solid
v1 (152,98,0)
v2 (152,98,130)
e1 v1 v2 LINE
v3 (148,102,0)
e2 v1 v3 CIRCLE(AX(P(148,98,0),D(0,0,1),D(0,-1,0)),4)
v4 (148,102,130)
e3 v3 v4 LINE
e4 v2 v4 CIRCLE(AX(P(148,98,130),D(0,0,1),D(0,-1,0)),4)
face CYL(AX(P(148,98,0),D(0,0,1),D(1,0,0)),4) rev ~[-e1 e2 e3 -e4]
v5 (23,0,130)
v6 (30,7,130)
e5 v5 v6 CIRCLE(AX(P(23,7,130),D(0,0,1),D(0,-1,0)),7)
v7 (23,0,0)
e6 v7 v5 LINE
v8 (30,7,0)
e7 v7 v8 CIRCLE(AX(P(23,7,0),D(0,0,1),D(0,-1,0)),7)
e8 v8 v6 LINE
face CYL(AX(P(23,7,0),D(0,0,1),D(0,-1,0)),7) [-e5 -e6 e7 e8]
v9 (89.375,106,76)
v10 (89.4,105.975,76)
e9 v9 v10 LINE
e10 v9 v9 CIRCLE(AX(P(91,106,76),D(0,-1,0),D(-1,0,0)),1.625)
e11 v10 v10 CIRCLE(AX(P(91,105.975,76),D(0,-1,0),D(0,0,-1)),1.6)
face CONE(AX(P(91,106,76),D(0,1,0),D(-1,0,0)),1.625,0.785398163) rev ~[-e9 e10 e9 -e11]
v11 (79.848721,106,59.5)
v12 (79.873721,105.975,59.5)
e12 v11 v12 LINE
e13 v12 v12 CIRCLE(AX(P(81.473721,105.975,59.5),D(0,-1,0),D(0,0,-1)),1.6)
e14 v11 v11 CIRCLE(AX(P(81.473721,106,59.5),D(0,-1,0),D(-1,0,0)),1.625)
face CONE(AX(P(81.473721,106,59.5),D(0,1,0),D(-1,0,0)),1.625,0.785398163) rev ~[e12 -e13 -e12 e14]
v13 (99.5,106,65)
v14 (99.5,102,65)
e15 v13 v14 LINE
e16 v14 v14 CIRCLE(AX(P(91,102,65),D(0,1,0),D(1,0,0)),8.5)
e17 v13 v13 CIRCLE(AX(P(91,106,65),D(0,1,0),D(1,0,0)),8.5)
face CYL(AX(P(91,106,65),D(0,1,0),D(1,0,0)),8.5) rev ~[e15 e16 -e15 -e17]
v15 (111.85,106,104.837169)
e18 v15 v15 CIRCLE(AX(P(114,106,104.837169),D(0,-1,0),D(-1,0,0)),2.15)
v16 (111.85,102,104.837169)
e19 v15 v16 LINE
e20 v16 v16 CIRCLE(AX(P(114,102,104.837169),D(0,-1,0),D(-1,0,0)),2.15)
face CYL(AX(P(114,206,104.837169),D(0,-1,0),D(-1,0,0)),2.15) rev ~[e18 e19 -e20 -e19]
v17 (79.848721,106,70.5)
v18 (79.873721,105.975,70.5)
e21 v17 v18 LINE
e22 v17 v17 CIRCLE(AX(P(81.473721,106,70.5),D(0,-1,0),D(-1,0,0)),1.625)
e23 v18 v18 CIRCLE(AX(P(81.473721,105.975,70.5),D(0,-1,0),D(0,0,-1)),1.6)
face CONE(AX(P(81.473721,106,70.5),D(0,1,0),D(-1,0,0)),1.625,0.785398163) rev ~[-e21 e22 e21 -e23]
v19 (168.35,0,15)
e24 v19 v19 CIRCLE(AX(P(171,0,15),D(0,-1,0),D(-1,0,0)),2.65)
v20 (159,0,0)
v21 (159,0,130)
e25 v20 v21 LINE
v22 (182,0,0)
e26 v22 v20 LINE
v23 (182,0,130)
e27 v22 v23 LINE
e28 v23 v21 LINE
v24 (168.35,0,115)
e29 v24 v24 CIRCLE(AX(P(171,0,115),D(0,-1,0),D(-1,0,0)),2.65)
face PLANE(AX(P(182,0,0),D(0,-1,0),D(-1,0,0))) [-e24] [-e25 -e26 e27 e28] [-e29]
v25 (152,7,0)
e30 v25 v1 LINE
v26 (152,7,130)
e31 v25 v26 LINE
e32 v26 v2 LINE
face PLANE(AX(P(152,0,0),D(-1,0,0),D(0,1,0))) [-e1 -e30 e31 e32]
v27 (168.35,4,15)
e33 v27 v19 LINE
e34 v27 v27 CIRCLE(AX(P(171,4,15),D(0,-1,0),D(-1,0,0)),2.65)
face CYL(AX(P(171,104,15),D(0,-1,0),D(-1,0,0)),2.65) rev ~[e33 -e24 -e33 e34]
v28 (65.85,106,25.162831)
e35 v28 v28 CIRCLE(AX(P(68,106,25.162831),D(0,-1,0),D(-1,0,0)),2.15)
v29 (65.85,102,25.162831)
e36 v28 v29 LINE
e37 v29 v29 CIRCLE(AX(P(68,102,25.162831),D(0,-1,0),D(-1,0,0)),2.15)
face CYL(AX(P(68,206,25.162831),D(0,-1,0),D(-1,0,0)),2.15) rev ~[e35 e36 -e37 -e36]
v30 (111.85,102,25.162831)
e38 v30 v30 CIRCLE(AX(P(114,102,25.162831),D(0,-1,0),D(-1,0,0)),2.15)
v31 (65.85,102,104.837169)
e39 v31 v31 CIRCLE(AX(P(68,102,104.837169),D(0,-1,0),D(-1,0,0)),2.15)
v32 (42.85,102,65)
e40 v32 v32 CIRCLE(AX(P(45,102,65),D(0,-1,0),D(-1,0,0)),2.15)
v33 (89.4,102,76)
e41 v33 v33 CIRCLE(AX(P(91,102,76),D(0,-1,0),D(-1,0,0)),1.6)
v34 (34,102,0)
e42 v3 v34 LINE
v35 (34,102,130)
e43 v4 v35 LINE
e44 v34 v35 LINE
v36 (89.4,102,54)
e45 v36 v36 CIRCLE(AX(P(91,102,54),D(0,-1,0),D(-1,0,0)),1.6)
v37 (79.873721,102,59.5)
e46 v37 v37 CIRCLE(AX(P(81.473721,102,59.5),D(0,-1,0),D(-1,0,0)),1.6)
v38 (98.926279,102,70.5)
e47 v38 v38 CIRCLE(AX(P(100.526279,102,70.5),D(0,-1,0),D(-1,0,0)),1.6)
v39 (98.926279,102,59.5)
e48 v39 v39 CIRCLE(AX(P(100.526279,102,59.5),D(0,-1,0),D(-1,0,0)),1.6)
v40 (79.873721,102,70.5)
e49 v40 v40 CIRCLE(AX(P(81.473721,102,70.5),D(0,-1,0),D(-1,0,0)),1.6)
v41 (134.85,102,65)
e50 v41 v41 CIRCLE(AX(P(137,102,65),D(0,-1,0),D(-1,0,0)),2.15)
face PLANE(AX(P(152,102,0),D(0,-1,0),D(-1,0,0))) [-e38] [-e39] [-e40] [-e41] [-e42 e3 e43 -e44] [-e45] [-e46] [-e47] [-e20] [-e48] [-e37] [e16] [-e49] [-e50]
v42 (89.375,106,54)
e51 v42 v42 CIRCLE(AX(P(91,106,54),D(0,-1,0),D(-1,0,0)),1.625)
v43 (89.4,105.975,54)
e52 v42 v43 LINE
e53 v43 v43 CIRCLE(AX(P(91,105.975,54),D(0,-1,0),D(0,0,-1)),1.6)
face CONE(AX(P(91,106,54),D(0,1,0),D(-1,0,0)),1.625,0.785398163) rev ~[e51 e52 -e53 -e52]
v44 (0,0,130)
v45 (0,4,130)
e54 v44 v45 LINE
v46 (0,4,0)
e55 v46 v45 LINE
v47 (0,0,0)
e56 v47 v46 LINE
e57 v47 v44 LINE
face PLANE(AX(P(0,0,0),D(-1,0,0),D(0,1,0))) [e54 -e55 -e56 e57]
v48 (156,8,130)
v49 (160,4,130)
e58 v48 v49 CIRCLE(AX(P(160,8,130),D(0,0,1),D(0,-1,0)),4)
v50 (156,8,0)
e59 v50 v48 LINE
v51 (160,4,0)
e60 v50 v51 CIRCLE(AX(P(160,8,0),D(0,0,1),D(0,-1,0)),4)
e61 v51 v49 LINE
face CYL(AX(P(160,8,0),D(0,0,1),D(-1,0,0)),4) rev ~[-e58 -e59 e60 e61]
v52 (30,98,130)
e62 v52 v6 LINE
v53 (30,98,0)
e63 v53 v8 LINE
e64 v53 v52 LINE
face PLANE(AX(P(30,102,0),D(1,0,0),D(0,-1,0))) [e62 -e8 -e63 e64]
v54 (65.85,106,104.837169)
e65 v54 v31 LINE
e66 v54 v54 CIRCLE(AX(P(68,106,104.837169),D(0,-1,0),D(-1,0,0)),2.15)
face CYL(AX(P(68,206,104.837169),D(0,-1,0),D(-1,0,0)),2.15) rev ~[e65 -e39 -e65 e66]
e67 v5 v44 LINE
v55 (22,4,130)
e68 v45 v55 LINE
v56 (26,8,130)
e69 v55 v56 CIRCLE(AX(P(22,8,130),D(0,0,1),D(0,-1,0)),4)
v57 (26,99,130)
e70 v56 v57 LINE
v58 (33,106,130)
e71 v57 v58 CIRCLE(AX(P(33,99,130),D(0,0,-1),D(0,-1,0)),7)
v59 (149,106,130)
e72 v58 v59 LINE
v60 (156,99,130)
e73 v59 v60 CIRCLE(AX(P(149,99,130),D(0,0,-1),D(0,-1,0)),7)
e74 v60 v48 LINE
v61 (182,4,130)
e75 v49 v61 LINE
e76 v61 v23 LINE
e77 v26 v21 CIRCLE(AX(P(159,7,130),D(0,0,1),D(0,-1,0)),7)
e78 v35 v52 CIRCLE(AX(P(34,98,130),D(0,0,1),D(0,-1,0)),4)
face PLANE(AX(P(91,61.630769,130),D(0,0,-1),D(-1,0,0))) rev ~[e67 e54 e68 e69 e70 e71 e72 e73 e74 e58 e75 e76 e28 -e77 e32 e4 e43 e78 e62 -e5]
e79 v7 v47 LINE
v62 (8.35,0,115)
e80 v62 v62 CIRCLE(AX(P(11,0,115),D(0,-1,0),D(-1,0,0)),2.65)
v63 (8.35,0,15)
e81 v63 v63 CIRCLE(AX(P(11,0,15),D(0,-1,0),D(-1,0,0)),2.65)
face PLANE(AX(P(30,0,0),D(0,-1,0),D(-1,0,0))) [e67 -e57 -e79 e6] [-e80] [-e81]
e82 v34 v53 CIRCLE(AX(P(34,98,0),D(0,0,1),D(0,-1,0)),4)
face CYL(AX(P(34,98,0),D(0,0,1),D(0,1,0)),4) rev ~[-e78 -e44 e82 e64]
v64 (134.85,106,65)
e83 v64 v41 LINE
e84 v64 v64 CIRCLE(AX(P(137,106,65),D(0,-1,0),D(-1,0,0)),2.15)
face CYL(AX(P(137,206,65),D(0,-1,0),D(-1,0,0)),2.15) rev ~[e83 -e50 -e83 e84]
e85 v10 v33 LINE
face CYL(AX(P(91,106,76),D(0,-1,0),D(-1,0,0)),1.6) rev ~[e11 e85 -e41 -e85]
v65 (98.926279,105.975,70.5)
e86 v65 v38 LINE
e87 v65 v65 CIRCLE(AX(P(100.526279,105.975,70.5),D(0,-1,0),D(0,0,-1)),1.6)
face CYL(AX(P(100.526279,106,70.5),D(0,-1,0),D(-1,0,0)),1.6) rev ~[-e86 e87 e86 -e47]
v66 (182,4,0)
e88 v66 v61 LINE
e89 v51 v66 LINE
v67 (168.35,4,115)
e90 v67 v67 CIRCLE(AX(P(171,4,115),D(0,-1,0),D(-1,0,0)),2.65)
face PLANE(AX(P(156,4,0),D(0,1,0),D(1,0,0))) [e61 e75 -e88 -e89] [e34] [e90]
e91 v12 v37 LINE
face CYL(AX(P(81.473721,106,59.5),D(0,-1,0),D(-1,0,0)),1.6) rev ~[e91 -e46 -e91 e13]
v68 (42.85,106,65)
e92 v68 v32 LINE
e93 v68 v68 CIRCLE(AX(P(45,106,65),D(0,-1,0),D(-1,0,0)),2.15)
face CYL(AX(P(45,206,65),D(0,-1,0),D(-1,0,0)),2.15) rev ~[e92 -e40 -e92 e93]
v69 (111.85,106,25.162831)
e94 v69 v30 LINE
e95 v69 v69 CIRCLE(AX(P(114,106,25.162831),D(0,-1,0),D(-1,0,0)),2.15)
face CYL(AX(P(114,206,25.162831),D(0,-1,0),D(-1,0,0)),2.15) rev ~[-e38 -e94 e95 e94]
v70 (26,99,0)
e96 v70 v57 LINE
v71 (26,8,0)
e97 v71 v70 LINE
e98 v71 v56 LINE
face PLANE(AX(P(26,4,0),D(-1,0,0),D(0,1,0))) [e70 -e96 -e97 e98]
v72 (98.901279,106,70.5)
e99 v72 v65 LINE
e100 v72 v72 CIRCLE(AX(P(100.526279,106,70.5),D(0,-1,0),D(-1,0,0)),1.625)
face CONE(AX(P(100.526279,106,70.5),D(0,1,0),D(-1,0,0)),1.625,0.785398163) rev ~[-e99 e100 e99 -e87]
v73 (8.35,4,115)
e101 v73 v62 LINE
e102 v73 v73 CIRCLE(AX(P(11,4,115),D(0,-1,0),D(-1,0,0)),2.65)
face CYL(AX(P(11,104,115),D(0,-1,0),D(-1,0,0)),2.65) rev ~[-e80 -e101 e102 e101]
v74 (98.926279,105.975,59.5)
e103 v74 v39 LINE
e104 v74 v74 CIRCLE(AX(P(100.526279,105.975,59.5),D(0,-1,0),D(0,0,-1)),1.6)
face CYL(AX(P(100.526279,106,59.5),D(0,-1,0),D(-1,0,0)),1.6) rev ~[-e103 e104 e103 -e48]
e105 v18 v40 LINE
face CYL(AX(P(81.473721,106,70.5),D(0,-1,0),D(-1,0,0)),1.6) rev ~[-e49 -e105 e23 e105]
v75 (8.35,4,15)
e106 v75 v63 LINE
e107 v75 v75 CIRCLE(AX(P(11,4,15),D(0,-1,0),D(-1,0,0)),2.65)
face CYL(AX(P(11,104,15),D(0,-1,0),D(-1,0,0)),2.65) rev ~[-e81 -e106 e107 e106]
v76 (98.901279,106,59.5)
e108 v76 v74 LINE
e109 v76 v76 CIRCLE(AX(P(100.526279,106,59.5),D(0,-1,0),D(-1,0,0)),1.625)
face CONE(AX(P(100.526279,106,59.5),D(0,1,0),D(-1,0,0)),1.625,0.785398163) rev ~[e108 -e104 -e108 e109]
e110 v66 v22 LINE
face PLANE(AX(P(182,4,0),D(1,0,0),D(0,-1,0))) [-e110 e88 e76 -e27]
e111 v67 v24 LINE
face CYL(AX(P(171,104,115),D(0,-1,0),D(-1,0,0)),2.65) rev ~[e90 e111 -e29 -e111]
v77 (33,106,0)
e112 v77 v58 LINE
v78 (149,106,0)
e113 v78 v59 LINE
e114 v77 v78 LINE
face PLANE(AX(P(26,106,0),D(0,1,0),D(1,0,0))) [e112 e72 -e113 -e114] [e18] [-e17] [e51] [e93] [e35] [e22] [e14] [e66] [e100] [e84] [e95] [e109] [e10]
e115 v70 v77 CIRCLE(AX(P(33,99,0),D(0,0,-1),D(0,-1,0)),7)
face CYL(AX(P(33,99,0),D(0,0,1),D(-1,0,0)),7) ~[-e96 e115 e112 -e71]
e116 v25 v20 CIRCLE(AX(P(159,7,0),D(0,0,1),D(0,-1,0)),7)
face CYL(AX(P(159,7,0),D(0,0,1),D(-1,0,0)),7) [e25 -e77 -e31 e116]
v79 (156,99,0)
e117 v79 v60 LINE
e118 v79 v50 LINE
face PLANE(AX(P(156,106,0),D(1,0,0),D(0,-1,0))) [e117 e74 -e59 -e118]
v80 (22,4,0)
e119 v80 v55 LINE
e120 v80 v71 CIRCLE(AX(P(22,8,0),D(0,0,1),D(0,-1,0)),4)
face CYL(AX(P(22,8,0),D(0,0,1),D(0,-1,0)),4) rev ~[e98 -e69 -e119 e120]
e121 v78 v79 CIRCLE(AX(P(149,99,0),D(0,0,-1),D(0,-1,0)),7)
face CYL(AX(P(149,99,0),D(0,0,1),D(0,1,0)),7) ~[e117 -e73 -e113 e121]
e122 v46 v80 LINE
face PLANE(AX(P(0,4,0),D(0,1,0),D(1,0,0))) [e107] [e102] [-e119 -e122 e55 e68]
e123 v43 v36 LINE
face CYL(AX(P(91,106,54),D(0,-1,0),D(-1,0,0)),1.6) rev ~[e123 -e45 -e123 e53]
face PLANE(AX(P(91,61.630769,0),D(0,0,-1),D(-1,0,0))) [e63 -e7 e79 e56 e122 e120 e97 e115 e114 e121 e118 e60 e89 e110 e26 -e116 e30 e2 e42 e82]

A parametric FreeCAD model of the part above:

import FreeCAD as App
import Part
import Sketcher


def edges_at(feature, points):
    """Names of the edges that pass closest to the given points."""
    edges = feature.Shape.Edges
    near = lambda p: min(range(len(edges)), key=lambda i: edges[i].distToShape(Part.Vertex(*p))[0])
    return sorted({f"Edge{near(p) + 1}" for p in points})

doc = App.newDocument("Part")
params = doc.addObject("Spreadsheet::Sheet", "Params")
for row, (alias, value) in enumerate([
    ("sketch1_width", "26 mm"),
    ("sketch1_width2", "30 mm"),
    ("sketch1_width3", "122 mm"),
    ("sketch1_height", "4 mm"),
    ("sketch1_height2", "102 mm"),
    ("pad1_length", "130 mm"),
    ("fillet_radius", "4 mm"),
    ("fillet2_radius", "7 mm"),
    ("sketch2_diameter", "17 mm"),
    ("pocket1_length", "100 mm"),
    ("sketch3_diameter", "3.2 mm"),
    ("hole_diameter", "3.2 mm"),
    ("hole_csink_diameter", "3.25 mm"),
    ("sketch4_diameter", "4.3 mm"),
    ("hole2_diameter", "4.3 mm"),
    ("hole2_depth", "100 mm"),
    ("sketch5_diameter", "5.3 mm"),
    ("hole3_diameter", "5.3 mm"),
    ("hole3_depth", "100 mm"),
], start=1):
    params.set(f"A{row}", alias)
    params.set(f"B{row}", "=" + value)
    params.setAlias(f"B{row}", alias)

body = doc.addObject("PartDesign::Body", "Body")

# Sketch on XY plane
sketch1 = body.newObject("Sketcher::SketchObject", "Sketch")
sketch1.AttachmentSupport = (doc.getObject("XY_Plane"), [""])
sketch1.MapMode = "FlatFace"
sketch1.addGeometry([
    Part.LineSegment(App.Vector(26, 4, 0), App.Vector(0, 4, 0)),  # 0
    Part.LineSegment(App.Vector(0, 4, 0), App.Vector(0, 0, 0)),  # 1
    Part.LineSegment(App.Vector(0, 0, 0), App.Vector(30, 0, 0)),  # 2
    Part.LineSegment(App.Vector(30, 0, 0), App.Vector(30, 102, 0)),  # 3
    Part.LineSegment(App.Vector(30, 102, 0), App.Vector(152, 102, 0)),  # 4
    Part.LineSegment(App.Vector(152, 102, 0), App.Vector(152, 0, 0)),  # 5
    Part.LineSegment(App.Vector(152, 0, 0), App.Vector(182, 0, 0)),  # 6
    Part.LineSegment(App.Vector(182, 0, 0), App.Vector(182, 4, 0)),  # 7
    Part.LineSegment(App.Vector(182, 4, 0), App.Vector(156, 4, 0)),  # 8
    Part.LineSegment(App.Vector(156, 4, 0), App.Vector(156, 106, 0)),  # 9
    Part.LineSegment(App.Vector(156, 106, 0), App.Vector(26, 106, 0)),  # 10
    Part.LineSegment(App.Vector(26, 106, 0), App.Vector(26, 4, 0)),  # 11
], False)
sketch1.addConstraint([
    Sketcher.Constraint("Coincident", 0, 2, 1, 1),
    Sketcher.Constraint("Coincident", 1, 2, 2, 1),
    Sketcher.Constraint("Coincident", 2, 2, 3, 1),
    Sketcher.Constraint("Coincident", 3, 2, 4, 1),
    Sketcher.Constraint("Coincident", 4, 2, 5, 1),
    Sketcher.Constraint("Coincident", 5, 2, 6, 1),
    Sketcher.Constraint("Coincident", 6, 2, 7, 1),
    Sketcher.Constraint("Coincident", 7, 2, 8, 1),
    Sketcher.Constraint("Coincident", 8, 2, 9, 1),
    Sketcher.Constraint("Coincident", 9, 2, 10, 1),
    Sketcher.Constraint("Coincident", 10, 2, 11, 1),
    Sketcher.Constraint("Coincident", 11, 2, 0, 1),
    Sketcher.Constraint("Horizontal", 0),
    Sketcher.Constraint("Vertical", 1),
    Sketcher.Constraint("Horizontal", 2),
    Sketcher.Constraint("Vertical", 3),
    Sketcher.Constraint("Horizontal", 4),
    Sketcher.Constraint("Vertical", 5),
    Sketcher.Constraint("Horizontal", 6),
    Sketcher.Constraint("Vertical", 7),
    Sketcher.Constraint("Horizontal", 8),
    Sketcher.Constraint("Vertical", 9),
    Sketcher.Constraint("Horizontal", 10),
    Sketcher.Constraint("Vertical", 11),
    Sketcher.Constraint("Coincident", 1, 2, -1, 1),
    Sketcher.Constraint("PointOnObject", 5, 2, -1),
    Sketcher.Constraint("Horizontal", 0, 2, 7, 2),
    Sketcher.Constraint("Equal", 2, 6),
    Sketcher.Constraint("Equal", 0, 8),
    Sketcher.Constraint("Equal", 5, 9),
    Sketcher.Constraint("DistanceX", 0, 2, 0, 1, 26.0),
    Sketcher.Constraint("DistanceX", 2, 1, 2, 2, 30.0),
    Sketcher.Constraint("DistanceX", 4, 1, 4, 2, 122.0),
    Sketcher.Constraint("DistanceY", 1, 2, 1, 1, 4.0),
    Sketcher.Constraint("DistanceY", 3, 1, 3, 2, 102.0),
])
sketch1.setExpression("Constraints[30]", "Params.sketch1_width")
sketch1.setExpression("Constraints[31]", "Params.sketch1_width2")
sketch1.setExpression("Constraints[32]", "Params.sketch1_width3")
sketch1.setExpression("Constraints[33]", "Params.sketch1_height")
sketch1.setExpression("Constraints[34]", "Params.sketch1_height2")
pad1 = body.newObject("PartDesign::Pad", "Pad")
pad1.Profile = sketch1
pad1.setExpression("Length", "Params.pad1_length")
doc.recompute()

fillet = body.newObject("PartDesign::Fillet", "Fillet")
fillet.Base = (pad1, edges_at(pad1, [
    (26, 4, 65),
    (156, 4, 65),
    (152, 102, 65),
    (30, 102, 65),
]))
fillet.setExpression("Radius", "Params.fillet_radius")
doc.recompute()

fillet2 = body.newObject("PartDesign::Fillet", "Fillet001")
fillet2.Base = (fillet, edges_at(fillet, [
    (26, 106, 65),
    (156, 106, 65),
    (152, 0, 65),
    (30, 0, 65),
]))
fillet2.setExpression("Radius", "Params.fillet2_radius")

# Sketch on XZ plane
sketch2 = body.newObject("Sketcher::SketchObject", "Sketch001")
sketch2.AttachmentSupport = (doc.getObject("XZ_Plane"), [""])
sketch2.MapMode = "FlatFace"
sketch2.AttachmentOffset = App.Placement(App.Vector(0, 0, -106), App.Rotation())
sketch2.addGeometry(Part.Circle(App.Vector(91, 65, 0), App.Vector(0, 0, 1), 8), False)
sketch2.addConstraint([
    Sketcher.Constraint("Diameter", 0, 17.0),
    Sketcher.Constraint("DistanceX", -1, 1, 0, 3, 91.0),
    Sketcher.Constraint("DistanceY", -1, 1, 0, 3, 65.0),
])
sketch2.setExpression("Constraints[0]", "Params.sketch2_diameter")
pocket1 = body.newObject("PartDesign::Pocket", "Pocket")
pocket1.Profile = sketch2
pocket1.setExpression("Length", "Params.pocket1_length")
pocket1.Reversed = True

# Sketch on XZ plane
sketch3 = body.newObject("Sketcher::SketchObject", "Sketch002")
sketch3.AttachmentSupport = (doc.getObject("XZ_Plane"), [""])
sketch3.MapMode = "FlatFace"
sketch3.AttachmentOffset = App.Placement(App.Vector(0, 0, -106), App.Rotation())
sketch3.addGeometry([
    Part.Circle(App.Vector(91, 54, 0), App.Vector(0, 0, 1), 1.6),  # 0
    Part.Circle(App.Vector(100.5, 59.5, 0), App.Vector(0, 0, 1), 1.6),  # 1
    Part.Circle(App.Vector(100.5, 70.5, 0), App.Vector(0, 0, 1), 1.6),  # 2
    Part.Circle(App.Vector(91, 76, 0), App.Vector(0, 0, 1), 1.6),  # 3
    Part.Circle(App.Vector(81.5, 70.5, 0), App.Vector(0, 0, 1), 1.6),  # 4
    Part.Circle(App.Vector(81.5, 59.5, 0), App.Vector(0, 0, 1), 1.6),  # 5
    Part.Circle(App.Vector(91, 65, 0), App.Vector(0, 0, 1), 1.6),  # 6
], False)
sketch3.addConstraint([
    Sketcher.Constraint("Equal", 0, 1),
    Sketcher.Constraint("Equal", 1, 2),
    Sketcher.Constraint("Equal", 2, 3),
    Sketcher.Constraint("Equal", 3, 4),
    Sketcher.Constraint("Equal", 4, 5),
    Sketcher.Constraint("Equal", 5, 6),
    Sketcher.Constraint("Horizontal", 2, 3, 4, 3),
    Sketcher.Constraint("Horizontal", 1, 3, 5, 3),
    Sketcher.Constraint("Vertical", 1, 3, 2, 3),
    Sketcher.Constraint("Vertical", 0, 3, 3, 3),
    Sketcher.Constraint("Vertical", 4, 3, 5, 3),
    Sketcher.Constraint("Vertical", 3, 3, 6, 3),
    Sketcher.Constraint("Diameter", 0, 3.2),
    Sketcher.Constraint("DistanceX", -1, 1, 0, 3, 91.0),
    Sketcher.Constraint("DistanceY", -1, 1, 0, 3, 54.0),
    Sketcher.Constraint("DistanceY", -1, 1, 3, 3, 76.0),
    Sketcher.Constraint("DistanceY", -1, 1, 6, 3, 65.0),
    Sketcher.Constraint("DistanceY", 1, 3, 2, 3, 11.0),
    Sketcher.Constraint("DistanceY", -1, 1, 1, 3, 59.5),
    Sketcher.Constraint("DistanceX", -1, 1, 1, 3, 100.526279),
    Sketcher.Constraint("DistanceX", -1, 1, 4, 3, 81.473721),
])
sketch3.setExpression("Constraints[12]", "Params.sketch3_diameter")
doc.recompute()
hole = body.newObject("PartDesign::Hole", "Hole")
hole.Profile = sketch3
hole.ThreadType = "None"
hole.setExpression("Diameter", "Params.hole_diameter")
hole.DepthType = "ThroughAll"
hole.HoleCutType = "Countersink"
hole.setExpression("HoleCutDiameter", "Params.hole_csink_diameter")
hole.HoleCutCountersinkAngle = 90
hole.Reversed = True

# Sketch on XZ plane
sketch4 = body.newObject("Sketcher::SketchObject", "Sketch003")
sketch4.AttachmentSupport = (doc.getObject("XZ_Plane"), [""])
sketch4.MapMode = "FlatFace"
sketch4.AttachmentOffset = App.Placement(App.Vector(0, 0, -106), App.Rotation())
sketch4.addGeometry([
    Part.Circle(App.Vector(137, 65, 0), App.Vector(0, 0, 1), 2.1),  # 0
    Part.Circle(App.Vector(114, 104.8, 0), App.Vector(0, 0, 1), 2.1),  # 1
    Part.Circle(App.Vector(68, 104.8, 0), App.Vector(0, 0, 1), 2.1),  # 2
    Part.Circle(App.Vector(45, 65, 0), App.Vector(0, 0, 1), 2.1),  # 3
    Part.Circle(App.Vector(68, 25.2, 0), App.Vector(0, 0, 1), 2.1),  # 4
    Part.Circle(App.Vector(114, 25.2, 0), App.Vector(0, 0, 1), 2.1),  # 5
    Part.Circle(App.Vector(91, 65, 0), App.Vector(0, 0, 1), 2.1),  # 6
], False)
sketch4.addConstraint([
    Sketcher.Constraint("Equal", 0, 1),
    Sketcher.Constraint("Equal", 1, 2),
    Sketcher.Constraint("Equal", 2, 3),
    Sketcher.Constraint("Equal", 3, 4),
    Sketcher.Constraint("Equal", 4, 5),
    Sketcher.Constraint("Equal", 5, 6),
    Sketcher.Constraint("Horizontal", 1, 3, 2, 3),
    Sketcher.Constraint("Horizontal", 0, 3, 3, 3),
    Sketcher.Constraint("Horizontal", 4, 3, 5, 3),
    Sketcher.Constraint("Horizontal", 3, 3, 6, 3),
    Sketcher.Constraint("Vertical", 2, 3, 4, 3),
    Sketcher.Constraint("Vertical", 1, 3, 5, 3),
    Sketcher.Constraint("Diameter", 0, 4.3),
    Sketcher.Constraint("DistanceX", -1, 1, 0, 3, 137.0),
    Sketcher.Constraint("DistanceY", -1, 1, 0, 3, 65.0),
    Sketcher.Constraint("DistanceX", -1, 1, 1, 3, 114.0),
    Sketcher.Constraint("DistanceX", -1, 1, 2, 3, 68.0),
    Sketcher.Constraint("DistanceX", -1, 1, 3, 3, 45.0),
    Sketcher.Constraint("DistanceX", -1, 1, 6, 3, 91.0),
    Sketcher.Constraint("DistanceY", -1, 1, 1, 3, 104.837169),
    Sketcher.Constraint("DistanceY", -1, 1, 4, 3, 25.162831),
])
sketch4.setExpression("Constraints[12]", "Params.sketch4_diameter")
doc.recompute()
hole2 = body.newObject("PartDesign::Hole", "Hole001")
hole2.Profile = sketch4
hole2.ThreadType = "None"
hole2.setExpression("Diameter", "Params.hole2_diameter")
hole2.DepthType = "Dimension"
hole2.setExpression("Depth", "Params.hole2_depth")
hole2.DrillPoint = "Angled"
hole2.DrillPointAngle = 118
hole2.Reversed = True

# Sketch on XZ plane
sketch5 = body.newObject("Sketcher::SketchObject", "Sketch004")
sketch5.AttachmentSupport = (doc.getObject("XZ_Plane"), [""])
sketch5.MapMode = "FlatFace"
sketch5.AttachmentOffset = App.Placement(App.Vector(0, 0, -4), App.Rotation())
sketch5.addGeometry([
    Part.Circle(App.Vector(11, 15, 0), App.Vector(0, 0, 1), 2.6),
    Part.Circle(App.Vector(11, 115, 0), App.Vector(0, 0, 1), 2.6),
    Part.Circle(App.Vector(171, 115, 0), App.Vector(0, 0, 1), 2.6),
    Part.Circle(App.Vector(171, 15, 0), App.Vector(0, 0, 1), 2.6),
], False)
sketch5.addConstraint([
    Sketcher.Constraint("Equal", 0, 1),
    Sketcher.Constraint("Equal", 1, 2),
    Sketcher.Constraint("Equal", 2, 3),
    Sketcher.Constraint("Horizontal", 1, 3, 2, 3),
    Sketcher.Constraint("Horizontal", 0, 3, 3, 3),
    Sketcher.Constraint("Vertical", 0, 3, 1, 3),
    Sketcher.Constraint("Vertical", 2, 3, 3, 3),
    Sketcher.Constraint("Diameter", 0, 5.3),
    Sketcher.Constraint("DistanceX", -1, 1, 0, 3, 11.0),
    Sketcher.Constraint("DistanceY", -1, 1, 0, 3, 15.0),
    Sketcher.Constraint("DistanceY", -1, 1, 1, 3, 115.0),
    Sketcher.Constraint("DistanceX", -1, 1, 2, 3, 171.0),
])
sketch5.setExpression("Constraints[7]", "Params.sketch5_diameter")
doc.recompute()
hole3 = body.newObject("PartDesign::Hole", "Hole002")
hole3.Profile = sketch5
hole3.ThreadType = "None"
hole3.setExpression("Diameter", "Params.hole3_diameter")
hole3.DepthType = "Dimension"
hole3.setExpression("Depth", "Params.hole3_depth")
hole3.DrillPoint = "Angled"
hole3.DrillPointAngle = 118
hole3.Reversed = True

doc.recompute()
